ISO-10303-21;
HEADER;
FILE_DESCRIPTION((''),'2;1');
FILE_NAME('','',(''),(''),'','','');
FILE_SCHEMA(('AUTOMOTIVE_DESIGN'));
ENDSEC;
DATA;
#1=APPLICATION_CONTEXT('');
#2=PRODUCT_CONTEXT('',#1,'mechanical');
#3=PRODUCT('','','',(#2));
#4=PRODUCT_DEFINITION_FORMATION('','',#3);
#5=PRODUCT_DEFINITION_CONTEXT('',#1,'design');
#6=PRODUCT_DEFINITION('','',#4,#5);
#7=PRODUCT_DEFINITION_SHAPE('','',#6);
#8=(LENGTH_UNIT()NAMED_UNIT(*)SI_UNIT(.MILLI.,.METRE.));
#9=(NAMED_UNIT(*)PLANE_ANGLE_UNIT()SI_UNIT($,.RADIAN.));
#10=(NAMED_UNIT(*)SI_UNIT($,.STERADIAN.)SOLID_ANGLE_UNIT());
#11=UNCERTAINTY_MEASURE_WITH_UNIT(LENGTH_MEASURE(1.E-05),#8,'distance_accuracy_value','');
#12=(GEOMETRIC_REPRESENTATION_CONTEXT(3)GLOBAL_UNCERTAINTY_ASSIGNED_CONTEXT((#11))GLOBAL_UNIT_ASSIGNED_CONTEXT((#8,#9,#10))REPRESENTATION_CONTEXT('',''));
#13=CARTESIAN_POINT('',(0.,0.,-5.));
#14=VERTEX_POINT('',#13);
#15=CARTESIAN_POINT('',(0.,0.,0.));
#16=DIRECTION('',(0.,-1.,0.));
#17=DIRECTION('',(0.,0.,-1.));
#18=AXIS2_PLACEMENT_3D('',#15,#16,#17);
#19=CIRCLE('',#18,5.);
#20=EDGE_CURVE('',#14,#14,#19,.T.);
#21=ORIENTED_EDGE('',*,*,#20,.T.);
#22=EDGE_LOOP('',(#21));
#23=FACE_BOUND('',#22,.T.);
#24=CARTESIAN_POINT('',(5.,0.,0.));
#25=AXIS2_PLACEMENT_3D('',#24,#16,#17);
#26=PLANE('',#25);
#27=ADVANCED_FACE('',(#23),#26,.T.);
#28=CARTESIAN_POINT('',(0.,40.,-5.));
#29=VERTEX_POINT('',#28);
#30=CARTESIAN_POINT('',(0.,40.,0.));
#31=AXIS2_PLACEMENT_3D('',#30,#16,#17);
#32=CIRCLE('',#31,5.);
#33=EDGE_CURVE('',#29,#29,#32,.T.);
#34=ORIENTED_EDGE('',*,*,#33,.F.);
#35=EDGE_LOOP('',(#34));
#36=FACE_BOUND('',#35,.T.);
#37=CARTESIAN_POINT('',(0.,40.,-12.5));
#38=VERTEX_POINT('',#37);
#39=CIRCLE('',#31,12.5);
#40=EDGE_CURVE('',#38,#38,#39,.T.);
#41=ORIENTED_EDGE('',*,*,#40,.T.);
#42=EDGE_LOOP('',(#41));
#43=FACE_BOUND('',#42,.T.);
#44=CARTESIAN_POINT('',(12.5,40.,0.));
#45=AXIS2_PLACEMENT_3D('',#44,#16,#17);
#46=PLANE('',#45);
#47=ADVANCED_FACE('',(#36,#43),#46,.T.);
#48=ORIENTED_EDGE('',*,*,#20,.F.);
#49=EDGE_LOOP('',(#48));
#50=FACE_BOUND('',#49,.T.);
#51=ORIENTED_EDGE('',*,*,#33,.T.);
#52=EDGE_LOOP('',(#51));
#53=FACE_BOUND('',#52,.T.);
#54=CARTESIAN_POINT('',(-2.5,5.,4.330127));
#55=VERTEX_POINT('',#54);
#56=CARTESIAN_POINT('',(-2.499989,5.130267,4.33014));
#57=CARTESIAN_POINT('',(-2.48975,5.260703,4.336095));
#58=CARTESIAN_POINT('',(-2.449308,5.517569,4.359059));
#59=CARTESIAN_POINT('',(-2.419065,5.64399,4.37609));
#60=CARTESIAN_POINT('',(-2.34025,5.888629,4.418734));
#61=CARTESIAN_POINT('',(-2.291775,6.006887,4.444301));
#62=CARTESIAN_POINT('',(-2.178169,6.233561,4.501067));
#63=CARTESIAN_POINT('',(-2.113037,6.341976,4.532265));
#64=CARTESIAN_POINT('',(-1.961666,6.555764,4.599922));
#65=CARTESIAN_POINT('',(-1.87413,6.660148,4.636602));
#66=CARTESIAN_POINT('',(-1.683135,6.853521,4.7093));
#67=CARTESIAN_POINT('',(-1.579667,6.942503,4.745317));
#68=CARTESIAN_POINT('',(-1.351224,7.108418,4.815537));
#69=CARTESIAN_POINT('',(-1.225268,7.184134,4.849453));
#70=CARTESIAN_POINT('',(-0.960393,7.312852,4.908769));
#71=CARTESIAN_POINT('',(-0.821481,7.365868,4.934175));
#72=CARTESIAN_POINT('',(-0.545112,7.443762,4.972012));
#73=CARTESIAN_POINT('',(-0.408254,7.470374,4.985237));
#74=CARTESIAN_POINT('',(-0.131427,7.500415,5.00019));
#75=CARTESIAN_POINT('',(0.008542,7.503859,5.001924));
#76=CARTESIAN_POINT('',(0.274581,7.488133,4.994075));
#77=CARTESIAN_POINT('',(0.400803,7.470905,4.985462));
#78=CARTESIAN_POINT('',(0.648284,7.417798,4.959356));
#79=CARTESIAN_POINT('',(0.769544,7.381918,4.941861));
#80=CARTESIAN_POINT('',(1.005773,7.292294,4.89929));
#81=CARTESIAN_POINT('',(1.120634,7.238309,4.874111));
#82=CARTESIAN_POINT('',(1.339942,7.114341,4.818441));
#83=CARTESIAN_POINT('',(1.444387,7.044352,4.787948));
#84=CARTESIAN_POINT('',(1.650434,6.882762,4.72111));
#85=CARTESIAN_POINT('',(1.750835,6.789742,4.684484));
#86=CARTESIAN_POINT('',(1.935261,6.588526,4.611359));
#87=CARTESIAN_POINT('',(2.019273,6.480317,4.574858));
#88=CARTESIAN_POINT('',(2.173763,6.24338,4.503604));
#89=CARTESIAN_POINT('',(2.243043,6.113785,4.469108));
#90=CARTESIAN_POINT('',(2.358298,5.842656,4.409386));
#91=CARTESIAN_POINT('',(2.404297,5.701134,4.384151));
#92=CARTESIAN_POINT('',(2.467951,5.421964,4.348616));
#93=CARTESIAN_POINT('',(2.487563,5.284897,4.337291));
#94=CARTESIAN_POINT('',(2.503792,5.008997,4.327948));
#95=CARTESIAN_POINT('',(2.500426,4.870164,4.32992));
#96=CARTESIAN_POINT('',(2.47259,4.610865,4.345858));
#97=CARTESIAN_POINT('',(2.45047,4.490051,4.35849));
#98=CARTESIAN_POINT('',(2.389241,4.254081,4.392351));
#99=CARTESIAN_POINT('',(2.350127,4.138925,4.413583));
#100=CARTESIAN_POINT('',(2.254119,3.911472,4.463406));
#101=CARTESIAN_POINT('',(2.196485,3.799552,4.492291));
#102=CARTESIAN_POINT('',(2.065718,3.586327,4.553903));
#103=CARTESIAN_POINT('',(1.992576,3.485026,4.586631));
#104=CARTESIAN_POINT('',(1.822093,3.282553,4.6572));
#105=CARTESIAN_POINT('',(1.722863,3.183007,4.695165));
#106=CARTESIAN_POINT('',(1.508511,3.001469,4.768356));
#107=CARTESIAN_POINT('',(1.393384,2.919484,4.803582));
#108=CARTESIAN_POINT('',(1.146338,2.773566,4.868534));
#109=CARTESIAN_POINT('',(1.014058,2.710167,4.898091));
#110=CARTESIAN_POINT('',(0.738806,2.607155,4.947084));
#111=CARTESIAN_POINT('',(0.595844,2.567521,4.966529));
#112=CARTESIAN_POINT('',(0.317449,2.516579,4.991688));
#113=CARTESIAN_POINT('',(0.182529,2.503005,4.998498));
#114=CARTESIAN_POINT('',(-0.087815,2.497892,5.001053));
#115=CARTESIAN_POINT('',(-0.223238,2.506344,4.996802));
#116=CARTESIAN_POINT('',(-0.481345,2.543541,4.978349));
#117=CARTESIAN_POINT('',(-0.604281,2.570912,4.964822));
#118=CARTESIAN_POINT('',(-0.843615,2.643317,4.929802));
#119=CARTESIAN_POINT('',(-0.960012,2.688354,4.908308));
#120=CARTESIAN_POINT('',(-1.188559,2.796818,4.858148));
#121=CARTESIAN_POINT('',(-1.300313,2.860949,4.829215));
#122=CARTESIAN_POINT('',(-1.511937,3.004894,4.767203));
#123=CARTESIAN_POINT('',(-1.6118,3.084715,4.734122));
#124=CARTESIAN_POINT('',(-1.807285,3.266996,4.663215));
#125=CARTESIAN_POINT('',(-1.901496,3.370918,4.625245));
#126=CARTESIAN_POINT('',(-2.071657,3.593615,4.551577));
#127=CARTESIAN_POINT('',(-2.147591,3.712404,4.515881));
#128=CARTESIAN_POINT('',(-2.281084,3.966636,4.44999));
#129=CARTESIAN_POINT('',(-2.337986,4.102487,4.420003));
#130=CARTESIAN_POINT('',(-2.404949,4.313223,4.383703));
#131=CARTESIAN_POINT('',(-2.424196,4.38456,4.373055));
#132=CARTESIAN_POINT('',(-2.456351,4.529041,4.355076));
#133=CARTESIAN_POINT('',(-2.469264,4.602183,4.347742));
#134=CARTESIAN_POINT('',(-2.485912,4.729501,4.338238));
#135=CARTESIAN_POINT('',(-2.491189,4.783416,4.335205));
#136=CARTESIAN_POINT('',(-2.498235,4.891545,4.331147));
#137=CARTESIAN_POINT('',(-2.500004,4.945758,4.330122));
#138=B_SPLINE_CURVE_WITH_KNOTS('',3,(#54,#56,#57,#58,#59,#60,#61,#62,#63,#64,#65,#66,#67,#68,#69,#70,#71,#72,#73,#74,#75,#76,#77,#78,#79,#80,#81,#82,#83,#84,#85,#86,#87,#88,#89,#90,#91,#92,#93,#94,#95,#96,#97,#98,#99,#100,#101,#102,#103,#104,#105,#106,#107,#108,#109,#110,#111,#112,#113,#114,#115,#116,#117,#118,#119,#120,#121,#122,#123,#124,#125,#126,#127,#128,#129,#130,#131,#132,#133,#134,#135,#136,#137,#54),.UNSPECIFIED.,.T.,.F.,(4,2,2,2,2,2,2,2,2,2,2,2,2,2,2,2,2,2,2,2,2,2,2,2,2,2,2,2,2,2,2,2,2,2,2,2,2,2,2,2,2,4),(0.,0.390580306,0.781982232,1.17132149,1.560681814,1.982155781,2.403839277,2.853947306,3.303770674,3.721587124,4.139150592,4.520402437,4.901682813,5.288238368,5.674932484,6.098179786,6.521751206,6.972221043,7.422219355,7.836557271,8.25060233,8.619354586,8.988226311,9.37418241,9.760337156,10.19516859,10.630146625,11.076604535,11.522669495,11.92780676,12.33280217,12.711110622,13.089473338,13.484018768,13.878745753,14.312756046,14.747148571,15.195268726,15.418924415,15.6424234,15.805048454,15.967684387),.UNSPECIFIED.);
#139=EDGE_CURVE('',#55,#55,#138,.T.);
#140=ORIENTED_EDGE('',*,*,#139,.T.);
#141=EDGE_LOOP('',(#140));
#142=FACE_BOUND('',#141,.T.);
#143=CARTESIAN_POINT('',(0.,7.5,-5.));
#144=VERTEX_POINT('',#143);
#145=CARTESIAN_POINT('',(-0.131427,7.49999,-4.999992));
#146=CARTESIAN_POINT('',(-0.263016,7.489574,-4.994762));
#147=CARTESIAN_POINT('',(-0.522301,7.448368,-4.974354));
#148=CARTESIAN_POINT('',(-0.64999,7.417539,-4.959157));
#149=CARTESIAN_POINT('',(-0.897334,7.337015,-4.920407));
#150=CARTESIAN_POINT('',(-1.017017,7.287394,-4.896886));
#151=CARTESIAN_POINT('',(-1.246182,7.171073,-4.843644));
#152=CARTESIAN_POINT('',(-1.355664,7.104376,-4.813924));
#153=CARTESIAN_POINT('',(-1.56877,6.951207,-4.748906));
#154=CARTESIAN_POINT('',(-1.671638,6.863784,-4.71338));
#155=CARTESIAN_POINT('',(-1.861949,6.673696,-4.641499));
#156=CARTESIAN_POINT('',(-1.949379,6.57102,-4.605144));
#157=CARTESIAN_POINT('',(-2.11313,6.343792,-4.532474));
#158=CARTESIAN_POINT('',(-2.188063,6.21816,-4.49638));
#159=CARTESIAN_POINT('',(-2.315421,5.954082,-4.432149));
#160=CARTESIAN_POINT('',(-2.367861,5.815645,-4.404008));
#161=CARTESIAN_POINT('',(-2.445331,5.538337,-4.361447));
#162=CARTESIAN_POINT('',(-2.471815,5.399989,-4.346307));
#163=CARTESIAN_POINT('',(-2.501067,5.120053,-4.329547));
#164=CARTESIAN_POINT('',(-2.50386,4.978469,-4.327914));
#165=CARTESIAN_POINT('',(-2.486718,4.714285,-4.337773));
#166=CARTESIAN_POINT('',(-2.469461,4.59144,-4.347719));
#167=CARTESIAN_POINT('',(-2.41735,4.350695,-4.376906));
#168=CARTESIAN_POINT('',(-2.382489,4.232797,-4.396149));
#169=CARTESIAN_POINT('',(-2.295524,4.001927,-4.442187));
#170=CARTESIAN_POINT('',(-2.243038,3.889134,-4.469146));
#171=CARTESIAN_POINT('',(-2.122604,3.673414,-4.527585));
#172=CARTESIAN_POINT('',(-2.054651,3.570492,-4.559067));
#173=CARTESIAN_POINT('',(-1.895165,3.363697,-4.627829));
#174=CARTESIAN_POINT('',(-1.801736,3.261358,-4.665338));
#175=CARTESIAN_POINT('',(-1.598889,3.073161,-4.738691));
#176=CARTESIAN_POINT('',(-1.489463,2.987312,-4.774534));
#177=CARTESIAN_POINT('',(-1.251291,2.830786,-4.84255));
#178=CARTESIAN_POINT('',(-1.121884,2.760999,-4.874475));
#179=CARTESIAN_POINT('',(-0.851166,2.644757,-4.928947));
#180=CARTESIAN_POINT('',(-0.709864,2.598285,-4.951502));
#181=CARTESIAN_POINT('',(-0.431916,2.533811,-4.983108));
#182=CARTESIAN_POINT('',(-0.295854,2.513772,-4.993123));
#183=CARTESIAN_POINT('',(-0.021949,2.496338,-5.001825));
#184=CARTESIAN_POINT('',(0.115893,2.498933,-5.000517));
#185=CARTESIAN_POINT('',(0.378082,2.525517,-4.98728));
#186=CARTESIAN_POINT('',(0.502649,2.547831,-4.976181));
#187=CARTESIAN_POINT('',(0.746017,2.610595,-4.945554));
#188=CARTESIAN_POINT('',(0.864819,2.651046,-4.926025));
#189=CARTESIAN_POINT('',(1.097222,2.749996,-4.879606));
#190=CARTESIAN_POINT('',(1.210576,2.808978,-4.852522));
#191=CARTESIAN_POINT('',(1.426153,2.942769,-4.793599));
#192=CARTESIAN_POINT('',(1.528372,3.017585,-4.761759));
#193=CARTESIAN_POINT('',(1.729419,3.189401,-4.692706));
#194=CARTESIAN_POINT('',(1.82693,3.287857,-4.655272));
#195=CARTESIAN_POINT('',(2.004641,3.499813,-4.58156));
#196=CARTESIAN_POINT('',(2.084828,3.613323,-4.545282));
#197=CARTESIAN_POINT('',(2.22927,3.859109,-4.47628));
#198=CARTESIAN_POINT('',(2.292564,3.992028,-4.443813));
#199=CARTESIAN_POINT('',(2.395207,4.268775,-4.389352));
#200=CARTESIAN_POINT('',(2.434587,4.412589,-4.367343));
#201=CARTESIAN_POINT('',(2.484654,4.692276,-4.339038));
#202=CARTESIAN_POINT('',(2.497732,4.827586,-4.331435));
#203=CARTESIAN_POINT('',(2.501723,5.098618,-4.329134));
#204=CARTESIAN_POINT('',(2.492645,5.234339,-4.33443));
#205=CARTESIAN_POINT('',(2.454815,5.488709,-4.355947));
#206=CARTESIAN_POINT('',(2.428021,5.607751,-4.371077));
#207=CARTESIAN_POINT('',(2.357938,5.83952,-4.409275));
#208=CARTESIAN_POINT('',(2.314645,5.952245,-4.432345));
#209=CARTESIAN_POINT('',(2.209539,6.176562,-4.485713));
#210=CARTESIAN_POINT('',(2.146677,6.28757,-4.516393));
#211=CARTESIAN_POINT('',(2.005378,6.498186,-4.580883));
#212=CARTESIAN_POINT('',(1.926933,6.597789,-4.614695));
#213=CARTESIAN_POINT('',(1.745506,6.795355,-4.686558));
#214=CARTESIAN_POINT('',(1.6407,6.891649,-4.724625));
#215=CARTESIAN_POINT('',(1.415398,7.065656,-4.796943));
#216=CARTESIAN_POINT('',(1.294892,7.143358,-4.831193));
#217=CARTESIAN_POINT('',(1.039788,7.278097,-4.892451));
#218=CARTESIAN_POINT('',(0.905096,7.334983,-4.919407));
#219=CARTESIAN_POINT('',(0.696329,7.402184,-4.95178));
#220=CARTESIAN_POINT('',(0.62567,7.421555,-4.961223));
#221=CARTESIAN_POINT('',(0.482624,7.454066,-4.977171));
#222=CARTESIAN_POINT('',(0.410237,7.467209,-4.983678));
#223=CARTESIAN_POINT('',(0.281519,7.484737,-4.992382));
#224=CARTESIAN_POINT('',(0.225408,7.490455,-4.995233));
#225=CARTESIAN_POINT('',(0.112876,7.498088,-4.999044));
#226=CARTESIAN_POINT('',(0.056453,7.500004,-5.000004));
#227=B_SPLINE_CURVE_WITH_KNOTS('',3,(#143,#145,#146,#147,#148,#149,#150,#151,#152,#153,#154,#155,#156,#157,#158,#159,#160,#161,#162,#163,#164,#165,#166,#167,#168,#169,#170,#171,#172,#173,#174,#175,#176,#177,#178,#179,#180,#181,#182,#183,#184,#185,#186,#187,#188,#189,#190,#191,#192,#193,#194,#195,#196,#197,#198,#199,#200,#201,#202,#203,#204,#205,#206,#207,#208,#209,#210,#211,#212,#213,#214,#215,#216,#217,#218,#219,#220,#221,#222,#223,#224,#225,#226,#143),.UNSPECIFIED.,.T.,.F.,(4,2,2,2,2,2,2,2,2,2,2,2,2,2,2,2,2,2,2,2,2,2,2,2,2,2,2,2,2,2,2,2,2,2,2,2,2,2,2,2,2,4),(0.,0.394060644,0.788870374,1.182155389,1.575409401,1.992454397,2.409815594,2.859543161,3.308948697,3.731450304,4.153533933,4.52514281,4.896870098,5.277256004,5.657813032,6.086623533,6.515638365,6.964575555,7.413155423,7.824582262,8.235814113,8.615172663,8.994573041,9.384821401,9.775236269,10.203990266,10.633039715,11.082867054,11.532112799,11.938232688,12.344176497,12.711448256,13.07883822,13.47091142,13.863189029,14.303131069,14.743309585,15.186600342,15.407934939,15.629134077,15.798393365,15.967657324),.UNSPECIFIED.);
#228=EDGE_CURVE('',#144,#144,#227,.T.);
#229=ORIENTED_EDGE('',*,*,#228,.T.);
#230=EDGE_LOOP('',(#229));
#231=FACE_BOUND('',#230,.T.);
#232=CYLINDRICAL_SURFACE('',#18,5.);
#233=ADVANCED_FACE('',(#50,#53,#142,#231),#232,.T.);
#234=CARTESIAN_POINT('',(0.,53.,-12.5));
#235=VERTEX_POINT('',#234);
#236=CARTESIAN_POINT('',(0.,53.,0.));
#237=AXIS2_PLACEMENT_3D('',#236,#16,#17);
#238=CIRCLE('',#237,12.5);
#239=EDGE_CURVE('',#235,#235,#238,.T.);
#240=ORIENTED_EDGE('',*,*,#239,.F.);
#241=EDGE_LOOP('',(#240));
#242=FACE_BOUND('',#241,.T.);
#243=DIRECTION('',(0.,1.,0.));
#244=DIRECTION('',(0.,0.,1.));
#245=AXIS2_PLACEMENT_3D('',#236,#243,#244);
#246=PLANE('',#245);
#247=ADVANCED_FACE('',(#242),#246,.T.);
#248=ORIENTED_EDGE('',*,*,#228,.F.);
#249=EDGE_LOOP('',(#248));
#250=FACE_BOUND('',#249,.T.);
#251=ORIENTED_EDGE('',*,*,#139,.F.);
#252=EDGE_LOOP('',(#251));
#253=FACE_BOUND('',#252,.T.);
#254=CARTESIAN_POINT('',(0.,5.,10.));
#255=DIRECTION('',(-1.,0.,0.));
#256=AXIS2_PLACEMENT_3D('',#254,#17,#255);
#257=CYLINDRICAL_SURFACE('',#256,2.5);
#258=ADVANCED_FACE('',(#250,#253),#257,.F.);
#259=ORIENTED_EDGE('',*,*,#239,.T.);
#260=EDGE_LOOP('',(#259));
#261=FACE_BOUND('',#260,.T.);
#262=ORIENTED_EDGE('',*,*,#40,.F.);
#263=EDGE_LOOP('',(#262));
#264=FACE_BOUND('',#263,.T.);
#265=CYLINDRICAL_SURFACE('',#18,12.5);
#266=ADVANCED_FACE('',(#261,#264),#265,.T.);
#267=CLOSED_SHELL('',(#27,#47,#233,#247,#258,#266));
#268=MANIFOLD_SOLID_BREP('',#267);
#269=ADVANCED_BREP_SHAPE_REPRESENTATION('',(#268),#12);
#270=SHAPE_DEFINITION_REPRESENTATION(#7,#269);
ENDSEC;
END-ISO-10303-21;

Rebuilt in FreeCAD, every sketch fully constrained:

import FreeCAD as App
import Part
import Sketcher
from FreeCAD import Vector
Q = App.Units.Quantity

doc = App.newDocument("Part")
params = doc.addObject("Spreadsheet::Sheet", "Params")
for row, (alias, value) in enumerate([
    ("sketch1_width", "5 mm"),
    ("sketch1_height", "53 mm"),
    ("sketch1_height2", "40 mm"),
    ("sketch1_width2", "7.5 mm"),
    ("revolution_angle", "360 deg"),
    ("sketch2_diameter", "5 mm"),
], start=1):
    params.set(f"A{row}", alias)
    params.set(f"B{row}", "=" + value)
    params.setAlias(f"B{row}", alias)

body = doc.addObject("PartDesign::Body", "Body")

# Sketch on XY plane
sketch1 = body.newObject("Sketcher::SketchObject", "Sketch")
sketch1.AttachmentSupport = (doc.getObject("XY_Plane"), [""])
sketch1.MapMode = "FlatFace"
sketch1.addGeometry(Part.LineSegment(Vector(0, 53, 0), Vector(0, 0, 0)), False)
sketch1.addGeometry(Part.LineSegment(Vector(0, 0, 0), Vector(5, 0, 0)), False)
sketch1.addGeometry(Part.LineSegment(Vector(5, 0, 0), Vector(5, 40, 0)), False)
sketch1.addGeometry(Part.LineSegment(Vector(5, 40, 0), Vector(12.5, 40, 0)), False)
sketch1.addGeometry(Part.LineSegment(Vector(12.5, 40, 0), Vector(12.5, 53, 0)), False)
sketch1.addGeometry(Part.LineSegment(Vector(12.5, 53, 0), Vector(0, 53, 0)), False)
sketch1.addConstraint(Sketcher.Constraint("Coincident", 0, 2, 1, 1))
sketch1.addConstraint(Sketcher.Constraint("Coincident", 1, 2, 2, 1))
sketch1.addConstraint(Sketcher.Constraint("Coincident", 2, 2, 3, 1))
sketch1.addConstraint(Sketcher.Constraint("Coincident", 3, 2, 4, 1))
sketch1.addConstraint(Sketcher.Constraint("Coincident", 4, 2, 5, 1))
sketch1.addConstraint(Sketcher.Constraint("Coincident", 5, 2, 0, 1))
sketch1.addConstraint(Sketcher.Constraint("Vertical", 0))
sketch1.addConstraint(Sketcher.Constraint("Horizontal", 1))
sketch1.addConstraint(Sketcher.Constraint("Vertical", 2))
sketch1.addConstraint(Sketcher.Constraint("Horizontal", 3))
sketch1.addConstraint(Sketcher.Constraint("Vertical", 4))
sketch1.addConstraint(Sketcher.Constraint("Horizontal", 5))
sketch1.addConstraint(Sketcher.Constraint("Coincident", 0, 2, -1, 1))
sketch1.addConstraint(Sketcher.Constraint("DistanceX", 1, 1, 1, 2, Q("5 mm")))
sketch1.addConstraint(Sketcher.Constraint("DistanceY", 0, 2, 0, 1, Q("53 mm")))
sketch1.addConstraint(Sketcher.Constraint("DistanceY", 2, 1, 2, 2, Q("40 mm")))
sketch1.addConstraint(Sketcher.Constraint("DistanceX", 3, 1, 3, 2, Q("7.5 mm")))
sketch1.setExpression("Constraints[13]", "Params.sketch1_width")
sketch1.setExpression("Constraints[14]", "Params.sketch1_height")
sketch1.setExpression("Constraints[15]", "Params.sketch1_height2")
sketch1.setExpression("Constraints[16]", "Params.sketch1_width2")
revolution = body.newObject("PartDesign::Revolution", "Revolution")
revolution.Profile = sketch1
revolution.ReferenceAxis = (sketch1, ["V_Axis"])
revolution.setExpression("Angle", "Params.revolution_angle")

# Sketch on XY plane
sketch2 = body.newObject("Sketcher::SketchObject", "Sketch001")
sketch2.AttachmentSupport = (doc.getObject("XY_Plane"), [""])
sketch2.MapMode = "FlatFace"
sketch2.addGeometry(Part.Circle(Vector(0, 5, 0), Vector(0, 0, 1), 2.5), False)
sketch2.addConstraint(Sketcher.Constraint("PointOnObject", 0, 3, -2))
sketch2.addConstraint(Sketcher.Constraint("Diameter", 0, Q("5 mm")))
sketch2.addConstraint(Sketcher.Constraint("DistanceY", -1, 1, 0, 3, Q("5 mm")))
sketch2.setExpression("Constraints[1]", "Params.sketch2_diameter")
pocket1 = body.newObject("PartDesign::Pocket", "Pocket")
pocket1.Profile = sketch2
pocket1.Type = "ThroughAll"
pocket1.Midplane = True

doc.recompute()
